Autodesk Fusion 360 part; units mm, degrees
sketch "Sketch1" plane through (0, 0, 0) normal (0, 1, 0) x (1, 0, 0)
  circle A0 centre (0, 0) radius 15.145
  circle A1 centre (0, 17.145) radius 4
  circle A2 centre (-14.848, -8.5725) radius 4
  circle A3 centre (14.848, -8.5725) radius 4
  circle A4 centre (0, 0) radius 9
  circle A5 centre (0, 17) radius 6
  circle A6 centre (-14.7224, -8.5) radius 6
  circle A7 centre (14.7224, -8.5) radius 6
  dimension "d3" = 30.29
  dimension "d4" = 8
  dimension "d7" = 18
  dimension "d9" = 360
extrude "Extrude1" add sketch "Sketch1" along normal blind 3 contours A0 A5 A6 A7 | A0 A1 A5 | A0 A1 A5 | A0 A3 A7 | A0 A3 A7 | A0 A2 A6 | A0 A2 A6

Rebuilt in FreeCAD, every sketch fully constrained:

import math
import FreeCAD as App
import Part
import Sketcher

V = App.Vector

doc = App.newDocument("Part")
body = doc.addObject("PartDesign::Body", "Body")

sketch1 = body.newObject("Sketcher::SketchObject", "Sketch")
sketch1.AttachmentSupport = (doc.getObject("XZ_Plane"), [""])
sketch1.MapMode = "FlatFace"
sketch1.addGeometry(Part.ArcOfCircle(Part.Circle(V(0, 0, 0), V(0, 0, 1), 15.145), math.radians(-69.516024), math.radians(9.516028)), False)
sketch1.addGeometry(Part.ArcOfCircle(Part.Circle(V(0, -17, 0), V(0, 0, 1), 6), math.radians(152.045549), math.radians(387.954451)), False)
sketch1.addGeometry(Part.ArcOfCircle(Part.Circle(V(0, 0, 0), V(0, 0, 1), 15.145), math.radians(170.483972), math.radians(249.516024)), False)
sketch1.addGeometry(Part.ArcOfCircle(Part.Circle(V(-14.7224, 8.5, 0), V(0, 0, 1), 6), math.radians(32.045744), math.radians(267.954148)), False)
sketch1.addGeometry(Part.ArcOfCircle(Part.Circle(V(0, 0, 0), V(0, 0, 1), 15.145), math.radians(50.484079), math.radians(129.515921)), False)
sketch1.addGeometry(Part.ArcOfCircle(Part.Circle(V(14.7224, 8.5, 0), V(0, 0, 1), 6), math.radians(-87.954148), math.radians(147.954256)), False)
sketch1.addGeometry(Part.Circle(V(0, 0, 0), V(0, 0, 1), 9), False)
sketch1.addGeometry(Part.Circle(V(14.848, 8.5725, 0), V(0, 0, 1), 4), False)
sketch1.addGeometry(Part.Circle(V(-14.848, 8.5725, 0), V(0, 0, 1), 4), False)
sketch1.addGeometry(Part.Circle(V(0, -17.145, 0), V(0, 0, 1), 4), False)
sketch1.addConstraint(Sketcher.Constraint("Coincident", 0, 1, 1, 2))
sketch1.addConstraint(Sketcher.Constraint("Coincident", 1, 1, 2, 2))
sketch1.addConstraint(Sketcher.Constraint("Coincident", 2, 1, 3, 2))
sketch1.addConstraint(Sketcher.Constraint("Coincident", 3, 1, 4, 2))
sketch1.addConstraint(Sketcher.Constraint("Coincident", 4, 1, 5, 2))
sketch1.addConstraint(Sketcher.Constraint("Coincident", 5, 1, 0, 2))
sketch1.addConstraint(Sketcher.Constraint("Coincident", 0, 3, -1, 1))
sketch1.addConstraint(Sketcher.Constraint("Coincident", 2, 3, -1, 1))
sketch1.addConstraint(Sketcher.Constraint("Coincident", 4, 3, -1, 1))
sketch1.addConstraint(Sketcher.Constraint("Coincident", 6, 3, -1, 1))
sketch1.addConstraint(Sketcher.Constraint("Equal", 0, 2))
sketch1.addConstraint(Sketcher.Constraint("Equal", 1, 3))
sketch1.addConstraint(Sketcher.Constraint("Equal", 2, 4))
sketch1.addConstraint(Sketcher.Constraint("Equal", 3, 5))
sketch1.addConstraint(Sketcher.Constraint("Equal", 7, 8))
sketch1.addConstraint(Sketcher.Constraint("Equal", 8, 9))
sketch1.addConstraint(Sketcher.Constraint("Symmetric", 3, 3, 5, 3, -2))
sketch1.addConstraint(Sketcher.Constraint("Symmetric", 7, 3, 8, 3, -2))
sketch1.addConstraint(Sketcher.Constraint("PointOnObject", 1, 3, -2))
sketch1.addConstraint(Sketcher.Constraint("PointOnObject", 9, 3, -2))
sketch1.addConstraint(Sketcher.Constraint("Diameter", 6, 18.0))
sketch1.addConstraint(Sketcher.Constraint("Diameter", 7, 8.0))
sketch1.addConstraint(Sketcher.Constraint("Radius", 0, 15.145))
sketch1.addConstraint(Sketcher.Constraint("Radius", 1, 6.0))
sketch1.addConstraint(Sketcher.Constraint("DistanceY", 1, 3, -1, 1, 17.0))
sketch1.addConstraint(Sketcher.Constraint("DistanceY", -1, 1, 3, 3, 8.5))
sketch1.addConstraint(Sketcher.Constraint("DistanceX", 2, 1, 3, 1, 5.3))
sketch1.addConstraint(Sketcher.Constraint("DistanceX", -1, 1, 7, 3, 14.848))
sketch1.addConstraint(Sketcher.Constraint("DistanceY", 9, 3, -1, 1, 17.145))
sketch1.addConstraint(Sketcher.Constraint("DistanceY", 8, 3, 3, 1, 3.111))
pad1 = body.newObject("PartDesign::Pad", "Pad")
pad1.Profile = sketch1
pad1.Length = 3
pad1.Reversed = True

doc.recompute()
